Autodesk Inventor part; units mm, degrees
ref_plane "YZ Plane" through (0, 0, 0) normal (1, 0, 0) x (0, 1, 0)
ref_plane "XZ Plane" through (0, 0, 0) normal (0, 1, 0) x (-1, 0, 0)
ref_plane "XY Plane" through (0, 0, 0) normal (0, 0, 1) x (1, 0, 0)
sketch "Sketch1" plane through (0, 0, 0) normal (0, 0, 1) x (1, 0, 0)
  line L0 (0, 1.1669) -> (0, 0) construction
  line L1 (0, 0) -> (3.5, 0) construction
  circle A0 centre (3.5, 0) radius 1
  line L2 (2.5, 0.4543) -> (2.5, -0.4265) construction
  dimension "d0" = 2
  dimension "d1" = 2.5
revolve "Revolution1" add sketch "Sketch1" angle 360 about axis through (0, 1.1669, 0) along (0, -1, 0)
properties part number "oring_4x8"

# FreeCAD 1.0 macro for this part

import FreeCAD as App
import Part
import Sketcher

V = App.Vector

doc = App.newDocument("Part")
params = doc.addObject("Spreadsheet::Sheet", "Params")
for row, (alias, value) in enumerate([
    ("sketch1_diameter", "2 mm"),
    ("revolution_angle", "360 deg"),
], start=1):
    params.set(f"A{row}", alias)
    params.set(f"B{row}", "=" + value)
    params.setAlias(f"B{row}", alias)

body = doc.addObject("PartDesign::Body", "Body")

# Sketch on XY plane
sketch1 = doc.addObject("Sketcher::SketchObject", "Sketch")
body.addObject(sketch1)
sketch1.AttachmentSupport = (doc.XY_Plane, [""])
sketch1.MapMode = "FlatFace"
sketch1.addGeometry(Part.Circle(V(3.5, 0, 0), V(0, 0, 1), 1), False)
sketch1.addConstraint([
    Sketcher.Constraint("PointOnObject", 0, 3, -1),
    Sketcher.Constraint("Diameter", 0, 2.0),
    Sketcher.Constraint("DistanceX", -1, 1, 0, 3, 3.5),
])
sketch1.setExpression("Constraints[1]", "Params.sketch1_diameter")
revolution = doc.addObject("PartDesign::Revolution", "Revolution")
body.addObject(revolution)
revolution.Profile = sketch1
revolution.ReferenceAxis = (sketch1, ["V_Axis"])
revolution.setExpression("Angle", "Params.revolution_angle")

doc.recompute()
